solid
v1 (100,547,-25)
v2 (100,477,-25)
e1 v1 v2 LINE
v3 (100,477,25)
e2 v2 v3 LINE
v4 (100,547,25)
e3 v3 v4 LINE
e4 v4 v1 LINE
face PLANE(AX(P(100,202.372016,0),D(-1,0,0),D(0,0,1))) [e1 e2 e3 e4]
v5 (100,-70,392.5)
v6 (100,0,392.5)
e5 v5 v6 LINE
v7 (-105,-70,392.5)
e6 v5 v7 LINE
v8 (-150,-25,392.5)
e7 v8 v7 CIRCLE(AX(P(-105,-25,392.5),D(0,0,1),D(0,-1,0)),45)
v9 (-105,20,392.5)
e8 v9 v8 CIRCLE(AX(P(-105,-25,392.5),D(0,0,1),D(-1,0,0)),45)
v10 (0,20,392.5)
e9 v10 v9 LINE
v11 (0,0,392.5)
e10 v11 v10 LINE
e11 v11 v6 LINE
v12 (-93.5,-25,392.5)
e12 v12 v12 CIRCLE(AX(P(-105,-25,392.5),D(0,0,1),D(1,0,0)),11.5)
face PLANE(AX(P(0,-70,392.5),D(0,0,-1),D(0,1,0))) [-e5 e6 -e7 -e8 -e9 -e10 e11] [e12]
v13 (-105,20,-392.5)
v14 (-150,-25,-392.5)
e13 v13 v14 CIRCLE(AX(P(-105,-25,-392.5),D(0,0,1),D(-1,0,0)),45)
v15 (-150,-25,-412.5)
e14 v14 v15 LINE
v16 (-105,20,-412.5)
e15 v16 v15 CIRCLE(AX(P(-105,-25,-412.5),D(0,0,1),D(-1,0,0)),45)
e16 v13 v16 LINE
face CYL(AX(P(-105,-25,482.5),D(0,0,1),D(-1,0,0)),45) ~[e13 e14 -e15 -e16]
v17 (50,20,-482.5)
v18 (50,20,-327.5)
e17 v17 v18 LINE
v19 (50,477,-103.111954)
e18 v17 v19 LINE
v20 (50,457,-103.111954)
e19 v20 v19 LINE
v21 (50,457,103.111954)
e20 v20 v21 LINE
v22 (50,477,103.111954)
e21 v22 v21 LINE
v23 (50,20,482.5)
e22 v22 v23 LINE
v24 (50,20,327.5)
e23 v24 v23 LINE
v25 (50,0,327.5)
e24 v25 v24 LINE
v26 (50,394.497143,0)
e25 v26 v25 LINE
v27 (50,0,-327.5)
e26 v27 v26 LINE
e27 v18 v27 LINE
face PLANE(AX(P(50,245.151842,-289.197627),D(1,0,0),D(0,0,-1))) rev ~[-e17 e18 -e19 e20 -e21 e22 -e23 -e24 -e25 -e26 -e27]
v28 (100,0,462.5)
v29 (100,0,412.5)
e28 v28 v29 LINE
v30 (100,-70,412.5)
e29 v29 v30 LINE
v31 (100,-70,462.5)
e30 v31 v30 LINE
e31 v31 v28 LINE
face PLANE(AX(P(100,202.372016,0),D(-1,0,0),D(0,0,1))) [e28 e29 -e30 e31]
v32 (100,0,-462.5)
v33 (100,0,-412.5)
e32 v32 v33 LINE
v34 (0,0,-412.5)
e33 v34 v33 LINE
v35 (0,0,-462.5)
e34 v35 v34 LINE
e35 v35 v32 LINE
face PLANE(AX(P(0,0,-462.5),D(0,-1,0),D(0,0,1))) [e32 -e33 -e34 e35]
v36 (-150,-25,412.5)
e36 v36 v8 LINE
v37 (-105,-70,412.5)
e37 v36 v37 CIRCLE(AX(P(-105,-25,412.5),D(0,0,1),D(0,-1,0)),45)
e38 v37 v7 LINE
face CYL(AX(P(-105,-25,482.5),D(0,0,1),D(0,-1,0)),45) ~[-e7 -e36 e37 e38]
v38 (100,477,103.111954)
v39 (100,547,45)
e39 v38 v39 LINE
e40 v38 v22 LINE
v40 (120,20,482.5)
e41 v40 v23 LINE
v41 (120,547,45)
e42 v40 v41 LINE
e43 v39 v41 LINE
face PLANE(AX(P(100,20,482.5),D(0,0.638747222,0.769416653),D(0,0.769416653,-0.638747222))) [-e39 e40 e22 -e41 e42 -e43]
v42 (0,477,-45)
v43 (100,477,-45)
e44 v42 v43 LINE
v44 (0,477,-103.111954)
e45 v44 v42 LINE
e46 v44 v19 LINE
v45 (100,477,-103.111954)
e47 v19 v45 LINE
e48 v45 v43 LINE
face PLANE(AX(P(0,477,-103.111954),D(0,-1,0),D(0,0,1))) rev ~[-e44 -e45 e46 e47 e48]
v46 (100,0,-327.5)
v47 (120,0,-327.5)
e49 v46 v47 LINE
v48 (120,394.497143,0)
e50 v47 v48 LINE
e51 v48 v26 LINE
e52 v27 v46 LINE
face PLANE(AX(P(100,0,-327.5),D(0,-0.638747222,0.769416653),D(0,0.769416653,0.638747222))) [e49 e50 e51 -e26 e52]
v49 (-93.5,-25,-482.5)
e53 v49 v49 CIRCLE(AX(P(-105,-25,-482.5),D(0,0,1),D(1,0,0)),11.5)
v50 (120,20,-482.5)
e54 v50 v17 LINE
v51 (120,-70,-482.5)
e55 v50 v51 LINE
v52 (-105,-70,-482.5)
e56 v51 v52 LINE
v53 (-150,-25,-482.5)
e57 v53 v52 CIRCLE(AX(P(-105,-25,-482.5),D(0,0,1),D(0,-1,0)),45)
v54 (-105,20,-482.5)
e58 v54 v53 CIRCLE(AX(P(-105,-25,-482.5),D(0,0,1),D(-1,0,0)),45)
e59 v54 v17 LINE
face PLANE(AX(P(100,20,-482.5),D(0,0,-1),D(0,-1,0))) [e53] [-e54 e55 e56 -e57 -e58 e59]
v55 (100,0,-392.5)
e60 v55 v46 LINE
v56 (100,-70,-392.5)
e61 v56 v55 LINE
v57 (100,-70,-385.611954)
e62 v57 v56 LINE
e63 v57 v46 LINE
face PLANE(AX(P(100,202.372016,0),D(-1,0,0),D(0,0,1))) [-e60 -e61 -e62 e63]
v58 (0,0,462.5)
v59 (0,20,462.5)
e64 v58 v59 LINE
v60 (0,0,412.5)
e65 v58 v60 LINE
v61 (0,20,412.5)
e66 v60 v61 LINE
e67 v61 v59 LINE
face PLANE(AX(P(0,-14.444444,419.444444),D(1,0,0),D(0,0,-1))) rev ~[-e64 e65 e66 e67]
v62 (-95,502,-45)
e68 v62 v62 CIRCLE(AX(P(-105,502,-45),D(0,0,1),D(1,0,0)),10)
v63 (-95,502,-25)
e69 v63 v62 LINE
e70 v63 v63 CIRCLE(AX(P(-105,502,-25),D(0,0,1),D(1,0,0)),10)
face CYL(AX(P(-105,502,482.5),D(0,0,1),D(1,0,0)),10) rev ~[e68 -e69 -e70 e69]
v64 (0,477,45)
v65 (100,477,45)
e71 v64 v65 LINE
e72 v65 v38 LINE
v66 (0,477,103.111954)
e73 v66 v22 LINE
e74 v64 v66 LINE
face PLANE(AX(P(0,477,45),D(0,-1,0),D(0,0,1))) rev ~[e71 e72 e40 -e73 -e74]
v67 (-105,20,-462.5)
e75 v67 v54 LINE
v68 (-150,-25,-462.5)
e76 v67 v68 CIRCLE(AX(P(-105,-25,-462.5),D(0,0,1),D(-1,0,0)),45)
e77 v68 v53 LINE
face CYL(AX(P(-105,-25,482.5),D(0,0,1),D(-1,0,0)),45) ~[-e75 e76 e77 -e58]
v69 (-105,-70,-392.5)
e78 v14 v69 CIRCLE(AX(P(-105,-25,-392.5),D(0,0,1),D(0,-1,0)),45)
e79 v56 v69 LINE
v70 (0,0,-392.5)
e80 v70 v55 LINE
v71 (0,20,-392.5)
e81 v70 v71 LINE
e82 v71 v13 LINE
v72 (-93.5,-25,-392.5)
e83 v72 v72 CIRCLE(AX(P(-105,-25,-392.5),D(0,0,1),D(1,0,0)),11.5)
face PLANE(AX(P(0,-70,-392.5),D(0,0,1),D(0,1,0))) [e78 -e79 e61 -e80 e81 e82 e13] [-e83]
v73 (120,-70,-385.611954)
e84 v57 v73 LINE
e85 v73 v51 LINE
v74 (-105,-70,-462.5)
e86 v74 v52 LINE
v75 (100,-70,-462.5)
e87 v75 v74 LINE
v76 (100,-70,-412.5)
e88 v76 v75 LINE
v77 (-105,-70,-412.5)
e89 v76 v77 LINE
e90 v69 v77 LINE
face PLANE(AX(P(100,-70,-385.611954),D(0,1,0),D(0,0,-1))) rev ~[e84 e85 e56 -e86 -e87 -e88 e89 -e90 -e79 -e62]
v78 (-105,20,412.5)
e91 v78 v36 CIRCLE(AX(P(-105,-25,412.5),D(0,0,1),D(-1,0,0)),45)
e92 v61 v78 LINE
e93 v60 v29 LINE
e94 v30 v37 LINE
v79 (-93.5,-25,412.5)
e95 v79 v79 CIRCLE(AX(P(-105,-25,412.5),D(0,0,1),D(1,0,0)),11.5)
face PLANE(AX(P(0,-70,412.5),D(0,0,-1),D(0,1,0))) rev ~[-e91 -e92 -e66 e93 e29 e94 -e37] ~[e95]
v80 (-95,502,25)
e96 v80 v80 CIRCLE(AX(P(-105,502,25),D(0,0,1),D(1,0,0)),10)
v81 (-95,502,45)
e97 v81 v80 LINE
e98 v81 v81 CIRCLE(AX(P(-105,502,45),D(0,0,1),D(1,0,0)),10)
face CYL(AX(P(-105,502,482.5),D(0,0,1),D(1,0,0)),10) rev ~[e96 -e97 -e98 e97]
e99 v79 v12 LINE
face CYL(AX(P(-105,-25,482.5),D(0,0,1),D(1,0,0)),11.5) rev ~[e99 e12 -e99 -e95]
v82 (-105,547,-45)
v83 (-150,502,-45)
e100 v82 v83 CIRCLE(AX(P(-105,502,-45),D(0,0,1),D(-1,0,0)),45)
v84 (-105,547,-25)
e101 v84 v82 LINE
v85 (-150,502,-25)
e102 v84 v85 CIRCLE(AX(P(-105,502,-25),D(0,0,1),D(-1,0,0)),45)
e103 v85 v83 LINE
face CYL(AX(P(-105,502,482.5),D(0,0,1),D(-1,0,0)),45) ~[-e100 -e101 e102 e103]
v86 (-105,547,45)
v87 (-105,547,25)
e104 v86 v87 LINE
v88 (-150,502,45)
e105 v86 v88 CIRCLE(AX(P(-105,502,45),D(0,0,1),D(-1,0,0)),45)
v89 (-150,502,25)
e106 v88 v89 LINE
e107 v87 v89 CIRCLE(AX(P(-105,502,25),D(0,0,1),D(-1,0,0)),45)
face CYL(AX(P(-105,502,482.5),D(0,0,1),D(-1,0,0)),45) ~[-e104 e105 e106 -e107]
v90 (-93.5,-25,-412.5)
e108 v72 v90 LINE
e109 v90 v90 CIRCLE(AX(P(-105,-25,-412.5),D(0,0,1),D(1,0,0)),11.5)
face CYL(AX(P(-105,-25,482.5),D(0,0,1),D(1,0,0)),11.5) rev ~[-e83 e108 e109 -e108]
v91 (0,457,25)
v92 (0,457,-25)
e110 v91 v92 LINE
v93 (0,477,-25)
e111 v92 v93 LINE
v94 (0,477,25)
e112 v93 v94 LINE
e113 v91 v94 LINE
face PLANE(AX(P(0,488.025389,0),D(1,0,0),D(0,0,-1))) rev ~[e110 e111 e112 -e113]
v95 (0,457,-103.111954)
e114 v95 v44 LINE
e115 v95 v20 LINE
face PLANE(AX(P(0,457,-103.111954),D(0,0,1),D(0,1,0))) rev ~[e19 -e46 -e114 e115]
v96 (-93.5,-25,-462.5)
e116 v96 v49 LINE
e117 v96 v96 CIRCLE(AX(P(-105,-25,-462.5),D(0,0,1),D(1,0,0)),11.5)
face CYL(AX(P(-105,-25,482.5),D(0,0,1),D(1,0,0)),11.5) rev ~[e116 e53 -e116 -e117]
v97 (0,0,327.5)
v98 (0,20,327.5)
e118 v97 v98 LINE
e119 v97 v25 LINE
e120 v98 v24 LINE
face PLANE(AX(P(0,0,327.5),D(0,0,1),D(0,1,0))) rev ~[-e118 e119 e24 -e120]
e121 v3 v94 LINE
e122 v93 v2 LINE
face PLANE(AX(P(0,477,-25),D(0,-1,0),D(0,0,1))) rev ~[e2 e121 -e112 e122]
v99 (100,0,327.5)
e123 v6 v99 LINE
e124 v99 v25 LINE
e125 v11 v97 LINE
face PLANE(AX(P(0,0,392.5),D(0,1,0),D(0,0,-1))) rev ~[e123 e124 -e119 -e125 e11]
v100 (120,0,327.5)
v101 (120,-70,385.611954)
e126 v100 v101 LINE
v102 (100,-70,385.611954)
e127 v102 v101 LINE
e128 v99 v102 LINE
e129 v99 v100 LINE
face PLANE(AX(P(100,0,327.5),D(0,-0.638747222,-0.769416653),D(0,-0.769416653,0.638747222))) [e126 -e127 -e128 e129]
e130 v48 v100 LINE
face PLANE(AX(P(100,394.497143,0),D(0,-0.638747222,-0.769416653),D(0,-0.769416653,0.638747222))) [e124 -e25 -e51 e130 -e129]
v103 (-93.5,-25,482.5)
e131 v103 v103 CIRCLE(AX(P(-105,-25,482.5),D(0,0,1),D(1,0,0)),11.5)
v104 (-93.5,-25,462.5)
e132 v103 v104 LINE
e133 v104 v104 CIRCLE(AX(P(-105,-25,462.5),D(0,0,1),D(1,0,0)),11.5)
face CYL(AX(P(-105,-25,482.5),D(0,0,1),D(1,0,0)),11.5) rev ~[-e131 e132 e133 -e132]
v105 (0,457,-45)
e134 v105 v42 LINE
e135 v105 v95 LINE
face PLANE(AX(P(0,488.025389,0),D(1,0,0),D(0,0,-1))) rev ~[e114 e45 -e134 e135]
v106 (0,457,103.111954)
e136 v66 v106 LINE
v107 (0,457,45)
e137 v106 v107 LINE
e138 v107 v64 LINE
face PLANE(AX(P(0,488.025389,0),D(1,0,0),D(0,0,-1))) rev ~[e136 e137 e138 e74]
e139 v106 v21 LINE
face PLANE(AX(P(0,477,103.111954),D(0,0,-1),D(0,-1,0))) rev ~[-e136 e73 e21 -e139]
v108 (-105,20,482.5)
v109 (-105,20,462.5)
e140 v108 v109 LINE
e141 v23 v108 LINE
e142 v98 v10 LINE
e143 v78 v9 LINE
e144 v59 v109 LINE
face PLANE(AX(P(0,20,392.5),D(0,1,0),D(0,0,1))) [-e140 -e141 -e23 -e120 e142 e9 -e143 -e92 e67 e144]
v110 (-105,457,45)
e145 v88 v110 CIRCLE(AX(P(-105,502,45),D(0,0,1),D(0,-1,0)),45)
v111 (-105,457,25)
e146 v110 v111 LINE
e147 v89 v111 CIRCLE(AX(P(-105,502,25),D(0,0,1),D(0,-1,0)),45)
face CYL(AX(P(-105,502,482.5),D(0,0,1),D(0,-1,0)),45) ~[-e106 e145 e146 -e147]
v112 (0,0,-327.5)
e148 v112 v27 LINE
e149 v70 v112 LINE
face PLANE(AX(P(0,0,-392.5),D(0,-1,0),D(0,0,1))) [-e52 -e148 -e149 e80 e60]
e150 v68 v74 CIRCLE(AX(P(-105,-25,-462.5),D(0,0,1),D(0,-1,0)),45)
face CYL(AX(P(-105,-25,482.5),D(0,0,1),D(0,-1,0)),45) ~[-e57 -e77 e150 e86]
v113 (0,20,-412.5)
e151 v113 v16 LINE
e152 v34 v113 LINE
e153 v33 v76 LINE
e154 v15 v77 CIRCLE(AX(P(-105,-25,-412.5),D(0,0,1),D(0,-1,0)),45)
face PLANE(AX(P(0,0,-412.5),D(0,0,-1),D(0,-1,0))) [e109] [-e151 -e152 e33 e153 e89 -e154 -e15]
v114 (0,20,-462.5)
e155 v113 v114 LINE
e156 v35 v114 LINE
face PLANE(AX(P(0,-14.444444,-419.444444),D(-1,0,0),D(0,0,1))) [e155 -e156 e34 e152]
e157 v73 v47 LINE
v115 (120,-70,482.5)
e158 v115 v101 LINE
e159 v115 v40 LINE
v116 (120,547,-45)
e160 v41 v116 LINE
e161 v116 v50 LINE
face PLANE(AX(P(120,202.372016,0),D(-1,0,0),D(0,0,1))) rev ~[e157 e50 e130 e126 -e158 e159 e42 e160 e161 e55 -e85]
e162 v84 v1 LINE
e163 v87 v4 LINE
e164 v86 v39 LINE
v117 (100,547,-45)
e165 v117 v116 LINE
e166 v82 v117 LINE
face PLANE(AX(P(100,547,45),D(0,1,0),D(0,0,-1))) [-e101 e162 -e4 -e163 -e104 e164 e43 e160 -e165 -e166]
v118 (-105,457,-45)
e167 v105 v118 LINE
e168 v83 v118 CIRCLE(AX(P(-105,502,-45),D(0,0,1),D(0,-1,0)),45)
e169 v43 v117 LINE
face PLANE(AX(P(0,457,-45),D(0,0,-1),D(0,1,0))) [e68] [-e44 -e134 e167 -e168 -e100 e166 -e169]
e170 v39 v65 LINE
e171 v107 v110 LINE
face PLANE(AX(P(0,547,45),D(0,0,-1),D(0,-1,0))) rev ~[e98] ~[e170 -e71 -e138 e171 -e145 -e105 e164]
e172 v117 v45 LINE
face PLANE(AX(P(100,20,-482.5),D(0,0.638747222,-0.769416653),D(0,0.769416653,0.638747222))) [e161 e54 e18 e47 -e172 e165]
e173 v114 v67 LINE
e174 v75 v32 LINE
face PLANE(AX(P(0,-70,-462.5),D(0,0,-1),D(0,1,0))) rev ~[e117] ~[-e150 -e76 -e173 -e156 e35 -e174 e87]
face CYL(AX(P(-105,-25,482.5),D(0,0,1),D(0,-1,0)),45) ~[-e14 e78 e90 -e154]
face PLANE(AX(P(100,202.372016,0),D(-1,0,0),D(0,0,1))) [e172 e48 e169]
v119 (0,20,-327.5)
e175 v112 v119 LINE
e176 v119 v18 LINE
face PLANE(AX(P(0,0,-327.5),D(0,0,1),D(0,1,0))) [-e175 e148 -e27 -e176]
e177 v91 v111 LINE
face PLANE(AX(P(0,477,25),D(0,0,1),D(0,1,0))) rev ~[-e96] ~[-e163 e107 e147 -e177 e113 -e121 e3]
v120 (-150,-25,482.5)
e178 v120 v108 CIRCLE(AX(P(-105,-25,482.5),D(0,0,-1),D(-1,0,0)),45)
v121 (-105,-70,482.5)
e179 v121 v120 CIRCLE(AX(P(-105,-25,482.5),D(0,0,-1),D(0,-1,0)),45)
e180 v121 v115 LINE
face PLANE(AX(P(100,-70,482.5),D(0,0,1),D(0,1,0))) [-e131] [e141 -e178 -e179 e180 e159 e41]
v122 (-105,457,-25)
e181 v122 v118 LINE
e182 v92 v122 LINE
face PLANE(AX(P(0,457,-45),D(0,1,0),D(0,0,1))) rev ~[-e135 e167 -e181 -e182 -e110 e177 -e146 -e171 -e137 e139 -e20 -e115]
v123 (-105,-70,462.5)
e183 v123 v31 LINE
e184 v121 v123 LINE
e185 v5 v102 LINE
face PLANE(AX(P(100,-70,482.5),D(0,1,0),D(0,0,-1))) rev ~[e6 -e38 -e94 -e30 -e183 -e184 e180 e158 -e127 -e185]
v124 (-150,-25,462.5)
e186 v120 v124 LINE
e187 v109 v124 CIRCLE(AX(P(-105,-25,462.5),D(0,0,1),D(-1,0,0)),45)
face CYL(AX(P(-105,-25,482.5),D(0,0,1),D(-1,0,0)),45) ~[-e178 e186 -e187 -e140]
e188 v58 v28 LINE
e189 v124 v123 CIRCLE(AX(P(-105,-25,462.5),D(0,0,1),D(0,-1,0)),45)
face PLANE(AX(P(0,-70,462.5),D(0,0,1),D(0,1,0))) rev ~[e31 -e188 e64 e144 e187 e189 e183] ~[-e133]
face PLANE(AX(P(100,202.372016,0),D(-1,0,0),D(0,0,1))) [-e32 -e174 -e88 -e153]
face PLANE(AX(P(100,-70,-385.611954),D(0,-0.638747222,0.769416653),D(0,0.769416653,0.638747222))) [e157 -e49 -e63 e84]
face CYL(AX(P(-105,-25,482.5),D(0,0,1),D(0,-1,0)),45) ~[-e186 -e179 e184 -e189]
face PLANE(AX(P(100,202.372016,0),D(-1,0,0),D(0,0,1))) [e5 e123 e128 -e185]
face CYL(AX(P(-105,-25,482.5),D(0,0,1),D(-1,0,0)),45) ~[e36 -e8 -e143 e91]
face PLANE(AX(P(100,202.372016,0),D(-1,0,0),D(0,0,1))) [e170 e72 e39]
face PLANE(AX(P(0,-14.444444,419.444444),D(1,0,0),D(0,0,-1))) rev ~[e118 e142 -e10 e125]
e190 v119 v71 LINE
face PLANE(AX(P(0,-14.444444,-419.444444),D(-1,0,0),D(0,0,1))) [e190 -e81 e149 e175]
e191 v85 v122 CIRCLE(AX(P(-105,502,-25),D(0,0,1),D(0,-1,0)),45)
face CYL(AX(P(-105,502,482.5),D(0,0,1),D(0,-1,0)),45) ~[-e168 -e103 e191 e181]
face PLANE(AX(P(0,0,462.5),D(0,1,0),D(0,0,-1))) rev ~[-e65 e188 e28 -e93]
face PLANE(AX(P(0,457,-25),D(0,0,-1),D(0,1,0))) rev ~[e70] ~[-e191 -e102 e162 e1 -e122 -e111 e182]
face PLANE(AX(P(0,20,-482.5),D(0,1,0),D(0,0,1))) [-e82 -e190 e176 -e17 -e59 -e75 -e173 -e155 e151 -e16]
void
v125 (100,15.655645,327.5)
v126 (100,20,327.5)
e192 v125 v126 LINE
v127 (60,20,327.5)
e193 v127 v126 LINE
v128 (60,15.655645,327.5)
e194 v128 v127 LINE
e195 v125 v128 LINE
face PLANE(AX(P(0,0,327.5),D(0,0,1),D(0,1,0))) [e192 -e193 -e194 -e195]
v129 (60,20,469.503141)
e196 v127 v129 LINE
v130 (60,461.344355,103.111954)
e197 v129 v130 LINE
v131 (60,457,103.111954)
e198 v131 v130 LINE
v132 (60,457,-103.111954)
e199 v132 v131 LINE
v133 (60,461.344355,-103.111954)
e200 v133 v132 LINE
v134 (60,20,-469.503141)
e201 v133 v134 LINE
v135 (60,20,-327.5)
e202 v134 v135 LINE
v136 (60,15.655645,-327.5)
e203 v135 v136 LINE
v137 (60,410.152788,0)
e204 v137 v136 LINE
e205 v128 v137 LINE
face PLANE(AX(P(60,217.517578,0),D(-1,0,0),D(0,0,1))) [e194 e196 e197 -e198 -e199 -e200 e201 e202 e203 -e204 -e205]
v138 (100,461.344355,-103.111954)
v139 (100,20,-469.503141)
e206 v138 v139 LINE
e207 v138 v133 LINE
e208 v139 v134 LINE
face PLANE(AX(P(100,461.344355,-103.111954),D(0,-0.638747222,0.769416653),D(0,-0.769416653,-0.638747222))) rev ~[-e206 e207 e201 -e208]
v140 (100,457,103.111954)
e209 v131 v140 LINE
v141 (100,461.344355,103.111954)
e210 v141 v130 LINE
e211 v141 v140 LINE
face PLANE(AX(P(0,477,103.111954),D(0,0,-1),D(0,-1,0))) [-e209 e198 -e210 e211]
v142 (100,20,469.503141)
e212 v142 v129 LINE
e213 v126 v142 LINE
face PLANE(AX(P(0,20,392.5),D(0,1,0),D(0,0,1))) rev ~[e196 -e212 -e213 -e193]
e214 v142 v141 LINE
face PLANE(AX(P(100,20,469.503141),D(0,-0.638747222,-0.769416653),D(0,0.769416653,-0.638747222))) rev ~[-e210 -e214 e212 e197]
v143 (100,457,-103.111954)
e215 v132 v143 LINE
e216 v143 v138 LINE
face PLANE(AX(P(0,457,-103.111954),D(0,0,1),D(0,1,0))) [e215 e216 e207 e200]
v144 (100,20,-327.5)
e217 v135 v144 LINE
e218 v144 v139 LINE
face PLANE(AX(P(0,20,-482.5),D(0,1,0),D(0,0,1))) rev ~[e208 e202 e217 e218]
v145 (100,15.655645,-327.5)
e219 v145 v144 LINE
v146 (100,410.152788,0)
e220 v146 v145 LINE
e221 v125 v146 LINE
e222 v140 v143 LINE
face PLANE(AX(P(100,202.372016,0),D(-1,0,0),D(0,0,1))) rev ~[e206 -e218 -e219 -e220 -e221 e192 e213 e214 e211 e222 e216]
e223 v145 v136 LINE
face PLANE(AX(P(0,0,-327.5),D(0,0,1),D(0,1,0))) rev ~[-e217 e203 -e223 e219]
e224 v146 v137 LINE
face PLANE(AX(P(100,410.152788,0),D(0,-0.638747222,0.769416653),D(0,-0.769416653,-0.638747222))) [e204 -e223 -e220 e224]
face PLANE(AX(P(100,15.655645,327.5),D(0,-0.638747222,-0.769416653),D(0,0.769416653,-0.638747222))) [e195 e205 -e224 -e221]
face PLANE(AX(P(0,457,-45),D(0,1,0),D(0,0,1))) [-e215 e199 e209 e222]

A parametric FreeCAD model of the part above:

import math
import FreeCAD as App
import Part
import Sketcher

V = App.Vector

doc = App.newDocument("Part")
params = doc.addObject("Spreadsheet::Sheet", "Params")
for row, (alias, value) in enumerate([
    ("sketch1_width", "70 mm"),
    ("sketch1_width2", "20 mm"),
    ("sketch1_height", "50 mm"),
    ("sketch1_height2", "65 mm"),
    ("pad1_length", "100 mm"),
    ("sketch2_width", "70 mm"),
    ("sketch2_width2", "20 mm"),
    ("sketch2_height", "50 mm"),
    ("pad2_length", "100 mm"),
    ("sketch3_width", "70 mm"),
    ("sketch3_width2", "90 mm"),
    ("sketch3_height", "65 mm"),
    ("sketch3_height2", "50 mm"),
    ("pad3_length", "100 mm"),
    ("sketch4_width", "90 mm"),
    ("sketch4_height", "20 mm"),
    ("pad4_length", "150 mm"),
    ("sketch5_width", "90 mm"),
    ("pad5_length", "20 mm"),
    ("sketch6_diameter", "23 mm"),
    ("sketch6_diameter2", "20 mm"),
    ("sketch6_radius", "45 mm"),
    ("pad6_length", "50 mm"),
    ("sketch8_width", "20 mm"),
    ("sketch8_height", "155 mm"),
    ("pad7_length", "10 mm"),
], start=1):
    params.set(f"A{row}", alias)
    params.set(f"B{row}", "=" + value)
    params.setAlias(f"B{row}", alias)

body = doc.addObject("PartDesign::Body", "Body")

sketch1 = body.newObject("Sketcher::SketchObject", "Sketch")
sketch1.AttachmentSupport = (doc.getObject("YZ_Plane"), [""])
sketch1.MapMode = "FlatFace"
sketch1.addGeometry([
    Part.LineSegment(V(0, 462, 0), V(0, 412, 0)),
    Part.LineSegment(V(0, 412, 0), V(-70, 412, 0)),
    Part.LineSegment(V(-70, 412, 0), V(-70, 392, 0)),
    Part.LineSegment(V(-70, 392, 0), V(0, 392, 0)),
    Part.LineSegment(V(0, 392, 0), V(0, 328, 0)),
    Part.LineSegment(V(0, 328, 0), V(20, 328, 0)),
    Part.LineSegment(V(20, 328, 0), V(20, 482, 0)),
    Part.LineSegment(V(20, 482, 0), V(-70, 482, 0)),
    Part.LineSegment(V(-70, 482, 0), V(-70, 462, 0)),
    Part.LineSegment(V(-70, 462, 0), V(0, 462, 0)),
], False)
sketch1.addConstraint([
    Sketcher.Constraint("Coincident", 0, 2, 1, 1),
    Sketcher.Constraint("Coincident", 1, 2, 2, 1),
    Sketcher.Constraint("Coincident", 2, 2, 3, 1),
    Sketcher.Constraint("Coincident", 3, 2, 4, 1),
    Sketcher.Constraint("Coincident", 4, 2, 5, 1),
    Sketcher.Constraint("Coincident", 5, 2, 6, 1),
    Sketcher.Constraint("Coincident", 6, 2, 7, 1),
    Sketcher.Constraint("Coincident", 7, 2, 8, 1),
    Sketcher.Constraint("Coincident", 8, 2, 9, 1),
    Sketcher.Constraint("Coincident", 9, 2, 0, 1),
    Sketcher.Constraint("Vertical", 0),
    Sketcher.Constraint("Horizontal", 1),
    Sketcher.Constraint("Vertical", 2),
    Sketcher.Constraint("Horizontal", 3),
    Sketcher.Constraint("Vertical", 4),
    Sketcher.Constraint("Horizontal", 5),
    Sketcher.Constraint("Vertical", 6),
    Sketcher.Constraint("Horizontal", 7),
    Sketcher.Constraint("Vertical", 8),
    Sketcher.Constraint("Horizontal", 9),
    Sketcher.Constraint("PointOnObject", 0, 2, -2),
    Sketcher.Constraint("PointOnObject", 3, 2, -2),
    Sketcher.Constraint("Vertical", 2, 2, 7, 2),
    Sketcher.Constraint("Equal", 5, 2),
    Sketcher.Constraint("Equal", 2, 8),
    Sketcher.Constraint("DistanceX", 1, 2, 1, 1, 70.0),
    Sketcher.Constraint("DistanceX", 5, 1, 5, 2, 20.0),
    Sketcher.Constraint("DistanceY", 0, 2, 0, 1, 50.0),
    Sketcher.Constraint("DistanceY", 4, 2, 4, 1, 65.0),
    Sketcher.Constraint("DistanceY", -1, 1, 0, 2, 412.5),
])
sketch1.setExpression("Constraints[25]", "Params.sketch1_width")
sketch1.setExpression("Constraints[26]", "Params.sketch1_width2")
sketch1.setExpression("Constraints[27]", "Params.sketch1_height")
sketch1.setExpression("Constraints[28]", "Params.sketch1_height2")
pad1 = body.newObject("PartDesign::Pad", "Pad")
pad1.Profile = sketch1
pad1.setExpression("Length", "Params.pad1_length")
body2 = doc.addObject("PartDesign::Body", "Body001")

sketch2 = body2.newObject("Sketcher::SketchObject", "Sketch001")
sketch2.AttachmentSupport = (doc.getObject("YZ_Plane001"), [""])
sketch2.MapMode = "FlatFace"
sketch2.addGeometry([
    Part.LineSegment(V(477, -25, 0), V(477, 25, 0)),
    Part.LineSegment(V(477, 25, 0), V(547, 25, 0)),
    Part.LineSegment(V(547, 25, 0), V(547, 45, 0)),
    Part.LineSegment(V(547, 45, 0), V(477, 45, 0)),
    Part.LineSegment(V(477, 45, 0), V(477, 103, 0)),
    Part.LineSegment(V(477, 103, 0), V(457, 103, 0)),
    Part.LineSegment(V(457, 103, 0), V(457, -103, 0)),
    Part.LineSegment(V(457, -103, 0), V(477, -103, 0)),
    Part.LineSegment(V(477, -103, 0), V(477, -45, 0)),
    Part.LineSegment(V(477, -45, 0), V(547, -45, 0)),
    Part.LineSegment(V(547, -45, 0), V(547, -25, 0)),
    Part.LineSegment(V(547, -25, 0), V(477, -25, 0)),
], False)
sketch2.addConstraint([
    Sketcher.Constraint("Coincident", 0, 2, 1, 1),
    Sketcher.Constraint("Coincident", 1, 2, 2, 1),
    Sketcher.Constraint("Coincident", 2, 2, 3, 1),
    Sketcher.Constraint("Coincident", 3, 2, 4, 1),
    Sketcher.Constraint("Coincident", 4, 2, 5, 1),
    Sketcher.Constraint("Coincident", 5, 2, 6, 1),
    Sketcher.Constraint("Coincident", 6, 2, 7, 1),
    Sketcher.Constraint("Coincident", 7, 2, 8, 1),
    Sketcher.Constraint("Coincident", 8, 2, 9, 1),
    Sketcher.Constraint("Coincident", 9, 2, 10, 1),
    Sketcher.Constraint("Coincident", 10, 2, 11, 1),
    Sketcher.Constraint("Coincident", 11, 2, 0, 1),
    Sketcher.Constraint("Vertical", 0),
    Sketcher.Constraint("Horizontal", 1),
    Sketcher.Constraint("Vertical", 2),
    Sketcher.Constraint("Horizontal", 3),
    Sketcher.Constraint("Vertical", 4),
    Sketcher.Constraint("Horizontal", 5),
    Sketcher.Constraint("Vertical", 6),
    Sketcher.Constraint("Horizontal", 7),
    Sketcher.Constraint("Vertical", 8),
    Sketcher.Constraint("Horizontal", 9),
    Sketcher.Constraint("Vertical", 10),
    Sketcher.Constraint("Horizontal", 11),
    Sketcher.Constraint("Symmetric", 4, 2, 7, 2, -1),
    Sketcher.Constraint("Symmetric", 2, 2, 9, 2, -1),
    Sketcher.Constraint("Vertical", 0, 2, 3, 2),
    Sketcher.Constraint("Equal", 7, 2),
    Sketcher.Constraint("Equal", 2, 10),
    Sketcher.Constraint("DistanceX", 1, 1, 1, 2, 70.0),
    Sketcher.Constraint("DistanceX", 5, 2, 5, 1, 20.0),
    Sketcher.Constraint("DistanceY", 0, 1, 0, 2, 50.0),
    Sketcher.Constraint("DistanceX", -1, 1, 0, 2, 477.0),
    Sketcher.Constraint("DistanceY", 6, 2, 6, 1, 206.223909),
])
sketch2.setExpression("Constraints[29]", "Params.sketch2_width")
sketch2.setExpression("Constraints[30]", "Params.sketch2_width2")
sketch2.setExpression("Constraints[31]", "Params.sketch2_height")
pad2 = body2.newObject("PartDesign::Pad", "Pad001")
pad2.Profile = sketch2
pad2.setExpression("Length", "Params.pad2_length")
body3 = doc.addObject("PartDesign::Body", "Body002")

sketch3 = body3.newObject("Sketcher::SketchObject", "Sketch002")
sketch3.AttachmentSupport = (doc.getObject("YZ_Plane002"), [""])
sketch3.MapMode = "FlatFace"
sketch3.addGeometry([
    Part.LineSegment(V(0, -328, 0), V(0, -392, 0)),
    Part.LineSegment(V(0, -392, 0), V(-70, -392, 0)),
    Part.LineSegment(V(-70, -392, 0), V(-70, -412, 0)),
    Part.LineSegment(V(-70, -412, 0), V(0, -412, 0)),
    Part.LineSegment(V(0, -412, 0), V(0, -462, 0)),
    Part.LineSegment(V(0, -462, 0), V(-70, -462, 0)),
    Part.LineSegment(V(-70, -462, 0), V(-70, -482, 0)),
    Part.LineSegment(V(-70, -482, 0), V(20, -482, 0)),
    Part.LineSegment(V(20, -482, 0), V(20, -328, 0)),
    Part.LineSegment(V(20, -328, 0), V(0, -328, 0)),
], False)
sketch3.addConstraint([
    Sketcher.Constraint("Coincident", 0, 2, 1, 1),
    Sketcher.Constraint("Coincident", 1, 2, 2, 1),
    Sketcher.Constraint("Coincident", 2, 2, 3, 1),
    Sketcher.Constraint("Coincident", 3, 2, 4, 1),
    Sketcher.Constraint("Coincident", 4, 2, 5, 1),
    Sketcher.Constraint("Coincident", 5, 2, 6, 1),
    Sketcher.Constraint("Coincident", 6, 2, 7, 1),
    Sketcher.Constraint("Coincident", 7, 2, 8, 1),
    Sketcher.Constraint("Coincident", 8, 2, 9, 1),
    Sketcher.Constraint("Coincident", 9, 2, 0, 1),
    Sketcher.Constraint("Vertical", 0),
    Sketcher.Constraint("Horizontal", 1),
    Sketcher.Constraint("Vertical", 2),
    Sketcher.Constraint("Horizontal", 3),
    Sketcher.Constraint("Vertical", 4),
    Sketcher.Constraint("Horizontal", 5),
    Sketcher.Constraint("Vertical", 6),
    Sketcher.Constraint("Horizontal", 7),
    Sketcher.Constraint("Vertical", 8),
    Sketcher.Constraint("Horizontal", 9),
    Sketcher.Constraint("PointOnObject", 0, 2, -2),
    Sketcher.Constraint("PointOnObject", 3, 2, -2),
    Sketcher.Constraint("Vertical", 2, 2, 5, 2),
    Sketcher.Constraint("Equal", 9, 2),
    Sketcher.Constraint("Equal", 2, 6),
    Sketcher.Constraint("DistanceX", 1, 2, 1, 1, 70.0),
    Sketcher.Constraint("DistanceX", 7, 1, 7, 2, 90.0),
    Sketcher.Constraint("DistanceY", 0, 2, 0, 1, 65.0),
    Sketcher.Constraint("DistanceY", 4, 2, 4, 1, 50.0),
    Sketcher.Constraint("DistanceY", 0, 2, -1, 1, 392.5),
])
sketch3.setExpression("Constraints[25]", "Params.sketch3_width")
sketch3.setExpression("Constraints[26]", "Params.sketch3_width2")
sketch3.setExpression("Constraints[27]", "Params.sketch3_height")
sketch3.setExpression("Constraints[28]", "Params.sketch3_height2")
pad3 = body3.newObject("PartDesign::Pad", "Pad002")
pad3.Profile = sketch3
pad3.setExpression("Length", "Params.pad3_length")
body.AllowCompound = True
doc.recompute()

boolean = body.newObject("PartDesign::Boolean", "Boolean")
boolean.Type = "Fuse"
boolean.addObjects([body2])
doc.recompute()

boolean2 = body.newObject("PartDesign::Boolean", "Boolean001")
boolean2.Type = "Fuse"
boolean2.addObjects([body3])

sketch4 = body.newObject("Sketcher::SketchObject", "Sketch003")
sketch4.AttachmentSupport = (doc.getObject("YZ_Plane"), [""])
sketch4.MapMode = "FlatFace"
sketch4.addGeometry([
    Part.LineSegment(V(20, -482, 0), V(-70, -482, 0)),
    Part.LineSegment(V(-70, -482, 0), V(-70, -462, 0)),
    Part.LineSegment(V(-70, -462, 0), V(20, -462, 0)),
    Part.LineSegment(V(20, -462, 0), V(20, -482, 0)),
    Part.LineSegment(V(20, -412, 0), V(-70, -412, 0)),
    Part.LineSegment(V(-70, -412, 0), V(-70, -392, 0)),
    Part.LineSegment(V(-70, -392, 0), V(20, -392, 0)),
    Part.LineSegment(V(20, -392, 0), V(20, -412, 0)),
    Part.LineSegment(V(547, -45, 0), V(457, -45, 0)),
    Part.LineSegment(V(457, -45, 0), V(457, -25, 0)),
    Part.LineSegment(V(457, -25, 0), V(547, -25, 0)),
    Part.LineSegment(V(547, -25, 0), V(547, -45, 0)),
    Part.LineSegment(V(547, 25, 0), V(457, 25, 0)),
    Part.LineSegment(V(457, 25, 0), V(457, 45, 0)),
    Part.LineSegment(V(457, 45, 0), V(547, 45, 0)),
    Part.LineSegment(V(547, 45, 0), V(547, 25, 0)),
    Part.LineSegment(V(20, 392, 0), V(-70, 392, 0)),
    Part.LineSegment(V(-70, 392, 0), V(-70, 412, 0)),
    Part.LineSegment(V(-70, 412, 0), V(20, 412, 0)),
    Part.LineSegment(V(20, 412, 0), V(20, 392, 0)),
    Part.LineSegment(V(20, 462, 0), V(-70, 462, 0)),
    Part.LineSegment(V(-70, 462, 0), V(-70, 482, 0)),
    Part.LineSegment(V(-70, 482, 0), V(20, 482, 0)),
    Part.LineSegment(V(20, 482, 0), V(20, 462, 0)),
], False)
sketch4.addConstraint([
    Sketcher.Constraint("Coincident", 0, 2, 1, 1),
    Sketcher.Constraint("Coincident", 1, 2, 2, 1),
    Sketcher.Constraint("Coincident", 2, 2, 3, 1),
    Sketcher.Constraint("Coincident", 3, 2, 0, 1),
    Sketcher.Constraint("Coincident", 4, 2, 5, 1),
    Sketcher.Constraint("Coincident", 5, 2, 6, 1),
    Sketcher.Constraint("Coincident", 6, 2, 7, 1),
    Sketcher.Constraint("Coincident", 7, 2, 4, 1),
    Sketcher.Constraint("Coincident", 8, 2, 9, 1),
    Sketcher.Constraint("Coincident", 9, 2, 10, 1),
    Sketcher.Constraint("Coincident", 10, 2, 11, 1),
    Sketcher.Constraint("Coincident", 11, 2, 8, 1),
    Sketcher.Constraint("Coincident", 12, 2, 13, 1),
    Sketcher.Constraint("Coincident", 13, 2, 14, 1),
    Sketcher.Constraint("Coincident", 14, 2, 15, 1),
    Sketcher.Constraint("Coincident", 15, 2, 12, 1),
    Sketcher.Constraint("Coincident", 16, 2, 17, 1),
    Sketcher.Constraint("Coincident", 17, 2, 18, 1),
    Sketcher.Constraint("Coincident", 18, 2, 19, 1),
    Sketcher.Constraint("Coincident", 19, 2, 16, 1),
    Sketcher.Constraint("Coincident", 20, 2, 21, 1),
    Sketcher.Constraint("Coincident", 21, 2, 22, 1),
    Sketcher.Constraint("Coincident", 22, 2, 23, 1),
    Sketcher.Constraint("Coincident", 23, 2, 20, 1),
    Sketcher.Constraint("Horizontal", 0),
    Sketcher.Constraint("Vertical", 1),
    Sketcher.Constraint("Horizontal", 2),
    Sketcher.Constraint("Vertical", 3),
    Sketcher.Constraint("Horizontal", 4),
    Sketcher.Constraint("Vertical", 5),
    Sketcher.Constraint("Horizontal", 6),
    Sketcher.Constraint("Vertical", 7),
    Sketcher.Constraint("Horizontal", 8),
    Sketcher.Constraint("Vertical", 9),
    Sketcher.Constraint("Horizontal", 10),
    Sketcher.Constraint("Vertical", 11),
    Sketcher.Constraint("Horizontal", 12),
    Sketcher.Constraint("Vertical", 13),
    Sketcher.Constraint("Horizontal", 14),
    Sketcher.Constraint("Vertical", 15),
    Sketcher.Constraint("Horizontal", 16),
    Sketcher.Constraint("Vertical", 17),
    Sketcher.Constraint("Horizontal", 18),
    Sketcher.Constraint("Vertical", 19),
    Sketcher.Constraint("Horizontal", 20),
    Sketcher.Constraint("Vertical", 21),
    Sketcher.Constraint("Horizontal", 22),
    Sketcher.Constraint("Vertical", 23),
    Sketcher.Constraint("Symmetric", 9, 2, 12, 2, -1),
    Sketcher.Constraint("Symmetric", 11, 2, 14, 2, -1),
    Sketcher.Constraint("Symmetric", 5, 2, 16, 2, -1),
    Sketcher.Constraint("Symmetric", 7, 2, 18, 2, -1),
    Sketcher.Constraint("Symmetric", 1, 2, 20, 2, -1),
    Sketcher.Constraint("Symmetric", 3, 2, 22, 2, -1),
    Sketcher.Constraint("Vertical", 1, 2, 4, 2),
    Sketcher.Constraint("Vertical", 3, 2, 6, 2),
    Sketcher.Constraint("Equal", 6, 8),
    Sketcher.Constraint("Equal", 3, 5),
    Sketcher.Constraint("Equal", 7, 9),
    Sketcher.Constraint("DistanceX", 0, 2, 0, 1, 90.0),
    Sketcher.Constraint("DistanceY", 1, 1, 1, 2, 20.0),
    Sketcher.Constraint("DistanceX", 0, 2, -1, 1, 70.0),
    Sketcher.Constraint("DistanceX", -1, 1, 8, 2, 457.0),
    Sketcher.Constraint("DistanceY", 8, 2, -1, 1, 45.0),
    Sketcher.Constraint("DistanceY", 1, 2, 4, 2, 50.0),
    Sketcher.Constraint("DistanceY", 0, 2, -1, 1, 482.5),
])
sketch4.setExpression("Constraints[59]", "Params.sketch4_width")
sketch4.setExpression("Constraints[60]", "Params.sketch4_height")
pad4 = body.newObject("PartDesign::Pad", "Pad003")
pad4.Profile = sketch4
pad4.setExpression("Length", "Params.pad4_length")
pad4.Reversed = True

sketch5 = body.newObject("Sketcher::SketchObject", "Sketch004")
sketch5.AttachmentSupport = (doc.getObject("YZ_Plane"), [""])
sketch5.MapMode = "FlatFace"
sketch5.AttachmentOffset = App.Placement(V(0, 0, 100), App.Rotation())
sketch5.addGeometry([
    Part.LineSegment(V(20, 482, 0), V(-70, 482, 0)),
    Part.LineSegment(V(-70, 482, 0), V(-70, 386, 0)),
    Part.LineSegment(V(-70, 386, 0), V(0, 328, 0)),
    Part.LineSegment(V(0, 328, 0), V(394, 0, 0)),
    Part.LineSegment(V(394, 0, 0), V(0, -328, 0)),
    Part.LineSegment(V(0, -328, 0), V(-70, -386, 0)),
    Part.LineSegment(V(-70, -386, 0), V(-70, -482, 0)),
    Part.LineSegment(V(-70, -482, 0), V(20, -482, 0)),
    Part.LineSegment(V(20, -482, 0), V(547, -45, 0)),
    Part.LineSegment(V(547, -45, 0), V(547, 45, 0)),
    Part.LineSegment(V(547, 45, 0), V(20, 482, 0)),
], False)
sketch5.addConstraint([
    Sketcher.Constraint("Coincident", 0, 2, 1, 1),
    Sketcher.Constraint("Coincident", 1, 2, 2, 1),
    Sketcher.Constraint("Coincident", 2, 2, 3, 1),
    Sketcher.Constraint("Coincident", 3, 2, 4, 1),
    Sketcher.Constraint("Coincident", 4, 2, 5, 1),
    Sketcher.Constraint("Coincident", 5, 2, 6, 1),
    Sketcher.Constraint("Coincident", 6, 2, 7, 1),
    Sketcher.Constraint("Coincident", 7, 2, 8, 1),
    Sketcher.Constraint("Coincident", 8, 2, 9, 1),
    Sketcher.Constraint("Coincident", 9, 2, 10, 1),
    Sketcher.Constraint("Coincident", 10, 2, 0, 1),
    Sketcher.Constraint("Horizontal", 0),
    Sketcher.Constraint("Vertical", 1),
    Sketcher.Constraint("Vertical", 6),
    Sketcher.Constraint("Horizontal", 7),
    Sketcher.Constraint("Vertical", 9),
    Sketcher.Constraint("Symmetric", 2, 2, 4, 2, -1, 1),
    Sketcher.Constraint("Symmetric", 1, 2, 5, 2, -1),
    Sketcher.Constraint("Symmetric", 7, 2, 10, 2, -1),
    Sketcher.Constraint("PointOnObject", 2, 2, -2),
    Sketcher.Constraint("PointOnObject", 3, 2, -1),
    Sketcher.Constraint("Parallel", 2, 3),
    Sketcher.Constraint("Parallel", 5, 8),
    Sketcher.Constraint("Parallel", 3, 10),
    Sketcher.Constraint("Equal", 7, 9),
    Sketcher.Constraint("DistanceX", 0, 2, 0, 1, 90.0),
    Sketcher.Constraint("DistanceX", 0, 2, -1, 1, 70.0),
    Sketcher.Constraint("DistanceX", -1, 1, 8, 2, 547.0),
    Sketcher.Constraint("DistanceY", 2, 2, 0, 2, 155.0),
    Sketcher.Constraint("DistanceY", 4, 2, 2, 2, 655.0),
])
sketch5.setExpression("Constraints[25]", "Params.sketch5_width")
pad5 = body.newObject("PartDesign::Pad", "Pad004")
pad5.Profile = sketch5
pad5.setExpression("Length", "Params.pad5_length")

sketch6 = body.newObject("Sketcher::SketchObject", "Sketch005")
sketch6.AttachmentSupport = (doc.getObject("XY_Plane"), [""])
sketch6.MapMode = "FlatFace"
sketch6.AttachmentOffset = App.Placement(V(0, 0, 482.5), App.Rotation())
sketch6.addGeometry([
    Part.ArcOfCircle(Part.Circle(V(-105, -25, 0), V(0, 0, 1), 45), math.radians(90), math.radians(180)),
    Part.LineSegment(V(-105, 20, 0), V(-150, 20, 0)),
    Part.LineSegment(V(-150, 20, 0), V(-150, -25, 0)),
    Part.Circle(V(-105, -25, 0), V(0, 0, 1), 12),
    Part.ArcOfCircle(Part.Circle(V(-105, -25, 0), V(0, 0, 1), 45), math.radians(-180), math.radians(-90)),
    Part.LineSegment(V(-150, -25, 0), V(-150, -70, 0)),
    Part.LineSegment(V(-150, -70, 0), V(-105, -70, 0)),
    Part.Circle(V(-105, 502, 0), V(0, 0, 1), 10),
    Part.LineSegment(V(-150, 547, 0), V(-150, 502, 0)),
    Part.ArcOfCircle(Part.Circle(V(-105, 502, 0), V(0, 0, 1), 45), math.radians(90), math.radians(180)),
    Part.LineSegment(V(-105, 547, 0), V(-150, 547, 0)),
    Part.LineSegment(V(-150, 457, 0), V(-105, 457, 0)),
    Part.ArcOfCircle(Part.Circle(V(-105, 502, 0), V(0, 0, 1), 45), math.radians(-180), math.radians(-90)),
    Part.LineSegment(V(-150, 502, 0), V(-150, 457, 0)),
], False)
sketch6.addConstraint([
    Sketcher.Constraint("Tangent", 0, 1, 1, 1),
    Sketcher.Constraint("Coincident", 1, 2, 2, 1),
    Sketcher.Constraint("Tangent", 2, 2, 0, 2),
    Sketcher.Constraint("Tangent", 4, 1, 5, 1),
    Sketcher.Constraint("Coincident", 5, 2, 6, 1),
    Sketcher.Constraint("Tangent", 6, 2, 4, 2),
    Sketcher.Constraint("Tangent", 8, 2, 9, 2),
    Sketcher.Constraint("Tangent", 9, 1, 10, 1),
    Sketcher.Constraint("Coincident", 10, 2, 8, 1),
    Sketcher.Constraint("Tangent", 11, 2, 12, 2),
    Sketcher.Constraint("Tangent", 12, 1, 13, 1),
    Sketcher.Constraint("Coincident", 13, 2, 11, 1),
    Sketcher.Constraint("Horizontal", 1),
    Sketcher.Constraint("Vertical", 2),
    Sketcher.Constraint("Vertical", 5),
    Sketcher.Constraint("Horizontal", 6),
    Sketcher.Constraint("Vertical", 8),
    Sketcher.Constraint("Horizontal", 10),
    Sketcher.Constraint("Horizontal", 11),
    Sketcher.Constraint("Vertical", 13),
    Sketcher.Constraint("Coincident", 3, 3, 0, 3),
    Sketcher.Constraint("Coincident", 4, 3, 0, 3),
    Sketcher.Constraint("Coincident", 9, 3, 7, 3),
    Sketcher.Constraint("Coincident", 12, 3, 7, 3),
    Sketcher.Constraint("Equal", 0, 4),
    Sketcher.Constraint("Equal", 4, 9),
    Sketcher.Constraint("Equal", 9, 12),
    Sketcher.Constraint("Vertical", 4, 3, 7, 3),
    Sketcher.Constraint("Diameter", 3, 23.0),
    Sketcher.Constraint("Diameter", 7, 20.0),
    Sketcher.Constraint("Radius", 0, 45.0),
    Sketcher.Constraint("DistanceX", 0, 3, -1, 1, 105.0),
    Sketcher.Constraint("DistanceY", 0, 3, -1, 1, 25.0),
    Sketcher.Constraint("DistanceY", -1, 1, 7, 3, 502.0),
])
sketch6.setExpression("Constraints[28]", "Params.sketch6_diameter")
sketch6.setExpression("Constraints[29]", "Params.sketch6_diameter2")
sketch6.setExpression("Constraints[30]", "Params.sketch6_radius")
pocket1 = body.newObject("PartDesign::Pocket", "Pocket")
pocket1.Profile = sketch6
pocket1.Type = "ThroughAll"
pocket1.Midplane = True

sketch7 = body.newObject("Sketcher::SketchObject", "Sketch006")
sketch7.AttachmentSupport = (doc.getObject("YZ_Plane"), [""])
sketch7.MapMode = "FlatFace"
sketch7.AttachmentOffset = App.Placement(V(0, 0, 100), App.Rotation())
sketch7.addGeometry([
    Part.LineSegment(V(477, -103, 0), V(20, -482, 0)),
    Part.LineSegment(V(20, -482, 0), V(20, -470, 0)),
    Part.LineSegment(V(20, -470, 0), V(461, -103, 0)),
    Part.LineSegment(V(461, -103, 0), V(477, -103, 0)),
    Part.LineSegment(V(0, -328, 0), V(394, 0, 0)),
    Part.LineSegment(V(394, 0, 0), V(0, 328, 0)),
    Part.LineSegment(V(0, 328, 0), V(16, 328, 0)),
    Part.LineSegment(V(16, 328, 0), V(410, 0, 0)),
    Part.LineSegment(V(410, 0, 0), V(16, -328, 0)),
    Part.LineSegment(V(16, -328, 0), V(0, -328, 0)),
    Part.LineSegment(V(20, 470, 0), V(20, 482, 0)),
    Part.LineSegment(V(20, 482, 0), V(477, 103, 0)),
    Part.LineSegment(V(477, 103, 0), V(461, 103, 0)),
    Part.LineSegment(V(461, 103, 0), V(20, 470, 0)),
], False)
sketch7.addConstraint([
    Sketcher.Constraint("Coincident", 0, 2, 1, 1),
    Sketcher.Constraint("Coincident", 1, 2, 2, 1),
    Sketcher.Constraint("Coincident", 2, 2, 3, 1),
    Sketcher.Constraint("Coincident", 3, 2, 0, 1),
    Sketcher.Constraint("Coincident", 4, 2, 5, 1),
    Sketcher.Constraint("Coincident", 5, 2, 6, 1),
    Sketcher.Constraint("Coincident", 6, 2, 7, 1),
    Sketcher.Constraint("Coincident", 7, 2, 8, 1),
    Sketcher.Constraint("Coincident", 8, 2, 9, 1),
    Sketcher.Constraint("Coincident", 9, 2, 4, 1),
    Sketcher.Constraint("Coincident", 10, 2, 11, 1),
    Sketcher.Constraint("Coincident", 11, 2, 12, 1),
    Sketcher.Constraint("Coincident", 12, 2, 13, 1),
    Sketcher.Constraint("Coincident", 13, 2, 10, 1),
    Sketcher.Constraint("Vertical", 1),
    Sketcher.Constraint("Horizontal", 3),
    Sketcher.Constraint("Horizontal", 6),
    Sketcher.Constraint("Horizontal", 9),
    Sketcher.Constraint("Vertical", 10),
    Sketcher.Constraint("Horizontal", 12),
    Sketcher.Constraint("Symmetric", 5, 2, 9, 2, -1, 1),
    Sketcher.Constraint("Symmetric", 0, 2, 10, 2, -1),
    Sketcher.Constraint("Symmetric", 3, 2, 11, 2, -1),
    Sketcher.Constraint("PointOnObject", 4, 2, -1),
    Sketcher.Constraint("PointOnObject", 5, 2, -2),
    Sketcher.Constraint("PointOnObject", 7, 2, -1),
    Sketcher.Constraint("Parallel", 0, 2),
    Sketcher.Constraint("Parallel", 2, 4),
    Sketcher.Constraint("Parallel", 5, 7),
    Sketcher.Constraint("Parallel", 4, 8),
    Sketcher.Constraint("Parallel", 11, 13),
    Sketcher.Constraint("Vertical", 2, 2, 12, 2),
    Sketcher.Constraint("Equal", 3, 6),
    Sketcher.Constraint("DistanceX", -1, 1, 0, 2, 20.0),
    Sketcher.Constraint("DistanceX", -1, 1, 3, 2, 477.0),
    Sketcher.Constraint("DistanceY", 0, 2, 5, 2, 810.0),
    Sketcher.Constraint("DistanceY", 0, 2, 8, 2, 155.0),
    Sketcher.Constraint("DistanceY", 1, 1, 1, 2, 12.996859),
    Sketcher.Constraint("Distance", 0, 593.956471),
])
pad6 = body.newObject("PartDesign::Pad", "Pad005")
pad6.Profile = sketch7
pad6.setExpression("Length", "Params.pad6_length")
pad6.Reversed = True

sketch8 = body.newObject("Sketcher::SketchObject", "Sketch007")
sketch8.AttachmentSupport = (doc.getObject("YZ_Plane"), [""])
sketch8.MapMode = "FlatFace"
sketch8.AttachmentOffset = App.Placement(V(0, 0, 50), App.Rotation())
sketch8.addGeometry([
    Part.LineSegment(V(20, -482, 0), V(20, -328, 0)),
    Part.LineSegment(V(20, -328, 0), V(0, -328, 0)),
    Part.LineSegment(V(0, -328, 0), V(394, 0, 0)),
    Part.LineSegment(V(394, 0, 0), V(0, 328, 0)),
    Part.LineSegment(V(0, 328, 0), V(20, 328, 0)),
    Part.LineSegment(V(20, 328, 0), V(20, 482, 0)),
    Part.LineSegment(V(20, 482, 0), V(477, 103, 0)),
    Part.LineSegment(V(477, 103, 0), V(477, -103, 0)),
    Part.LineSegment(V(477, -103, 0), V(20, -482, 0)),
], False)
sketch8.addConstraint([
    Sketcher.Constraint("Coincident", 0, 2, 1, 1),
    Sketcher.Constraint("Coincident", 1, 2, 2, 1),
    Sketcher.Constraint("Coincident", 2, 2, 3, 1),
    Sketcher.Constraint("Coincident", 3, 2, 4, 1),
    Sketcher.Constraint("Coincident", 4, 2, 5, 1),
    Sketcher.Constraint("Coincident", 5, 2, 6, 1),
    Sketcher.Constraint("Coincident", 6, 2, 7, 1),
    Sketcher.Constraint("Coincident", 7, 2, 8, 1),
    Sketcher.Constraint("Coincident", 8, 2, 0, 1),
    Sketcher.Constraint("Vertical", 0),
    Sketcher.Constraint("Horizontal", 1),
    Sketcher.Constraint("Horizontal", 4),
    Sketcher.Constraint("Vertical", 5),
    Sketcher.Constraint("Vertical", 7),
    Sketcher.Constraint("Symmetric", 1, 2, 3, 2, -1, 1),
    Sketcher.Constraint("Symmetric", 5, 2, 8, 2, -1),
    Sketcher.Constraint("PointOnObject", 1, 2, -2),
    Sketcher.Constraint("PointOnObject", 2, 2, -1),
    Sketcher.Constraint("Parallel", 3, 6),
    Sketcher.Constraint("Parallel", 2, 8),
    Sketcher.Constraint("DistanceX", 1, 2, 1, 1, 20.0),
    Sketcher.Constraint("DistanceY", 0, 1, 0, 2, 155.0),
    Sketcher.Constraint("DistanceX", -1, 1, 6, 2, 477.0),
    Sketcher.Constraint("DistanceY", 1, 2, 3, 2, 655.0),
    Sketcher.Constraint("DistanceY", 7, 2, 7, 1, 206.223909),
])
sketch8.setExpression("Constraints[20]", "Params.sketch8_width")
sketch8.setExpression("Constraints[21]", "Params.sketch8_height")
pad7 = body.newObject("PartDesign::Pad", "Pad006")
pad7.Profile = sketch8
pad7.setExpression("Length", "Params.pad7_length")

doc.recompute()
